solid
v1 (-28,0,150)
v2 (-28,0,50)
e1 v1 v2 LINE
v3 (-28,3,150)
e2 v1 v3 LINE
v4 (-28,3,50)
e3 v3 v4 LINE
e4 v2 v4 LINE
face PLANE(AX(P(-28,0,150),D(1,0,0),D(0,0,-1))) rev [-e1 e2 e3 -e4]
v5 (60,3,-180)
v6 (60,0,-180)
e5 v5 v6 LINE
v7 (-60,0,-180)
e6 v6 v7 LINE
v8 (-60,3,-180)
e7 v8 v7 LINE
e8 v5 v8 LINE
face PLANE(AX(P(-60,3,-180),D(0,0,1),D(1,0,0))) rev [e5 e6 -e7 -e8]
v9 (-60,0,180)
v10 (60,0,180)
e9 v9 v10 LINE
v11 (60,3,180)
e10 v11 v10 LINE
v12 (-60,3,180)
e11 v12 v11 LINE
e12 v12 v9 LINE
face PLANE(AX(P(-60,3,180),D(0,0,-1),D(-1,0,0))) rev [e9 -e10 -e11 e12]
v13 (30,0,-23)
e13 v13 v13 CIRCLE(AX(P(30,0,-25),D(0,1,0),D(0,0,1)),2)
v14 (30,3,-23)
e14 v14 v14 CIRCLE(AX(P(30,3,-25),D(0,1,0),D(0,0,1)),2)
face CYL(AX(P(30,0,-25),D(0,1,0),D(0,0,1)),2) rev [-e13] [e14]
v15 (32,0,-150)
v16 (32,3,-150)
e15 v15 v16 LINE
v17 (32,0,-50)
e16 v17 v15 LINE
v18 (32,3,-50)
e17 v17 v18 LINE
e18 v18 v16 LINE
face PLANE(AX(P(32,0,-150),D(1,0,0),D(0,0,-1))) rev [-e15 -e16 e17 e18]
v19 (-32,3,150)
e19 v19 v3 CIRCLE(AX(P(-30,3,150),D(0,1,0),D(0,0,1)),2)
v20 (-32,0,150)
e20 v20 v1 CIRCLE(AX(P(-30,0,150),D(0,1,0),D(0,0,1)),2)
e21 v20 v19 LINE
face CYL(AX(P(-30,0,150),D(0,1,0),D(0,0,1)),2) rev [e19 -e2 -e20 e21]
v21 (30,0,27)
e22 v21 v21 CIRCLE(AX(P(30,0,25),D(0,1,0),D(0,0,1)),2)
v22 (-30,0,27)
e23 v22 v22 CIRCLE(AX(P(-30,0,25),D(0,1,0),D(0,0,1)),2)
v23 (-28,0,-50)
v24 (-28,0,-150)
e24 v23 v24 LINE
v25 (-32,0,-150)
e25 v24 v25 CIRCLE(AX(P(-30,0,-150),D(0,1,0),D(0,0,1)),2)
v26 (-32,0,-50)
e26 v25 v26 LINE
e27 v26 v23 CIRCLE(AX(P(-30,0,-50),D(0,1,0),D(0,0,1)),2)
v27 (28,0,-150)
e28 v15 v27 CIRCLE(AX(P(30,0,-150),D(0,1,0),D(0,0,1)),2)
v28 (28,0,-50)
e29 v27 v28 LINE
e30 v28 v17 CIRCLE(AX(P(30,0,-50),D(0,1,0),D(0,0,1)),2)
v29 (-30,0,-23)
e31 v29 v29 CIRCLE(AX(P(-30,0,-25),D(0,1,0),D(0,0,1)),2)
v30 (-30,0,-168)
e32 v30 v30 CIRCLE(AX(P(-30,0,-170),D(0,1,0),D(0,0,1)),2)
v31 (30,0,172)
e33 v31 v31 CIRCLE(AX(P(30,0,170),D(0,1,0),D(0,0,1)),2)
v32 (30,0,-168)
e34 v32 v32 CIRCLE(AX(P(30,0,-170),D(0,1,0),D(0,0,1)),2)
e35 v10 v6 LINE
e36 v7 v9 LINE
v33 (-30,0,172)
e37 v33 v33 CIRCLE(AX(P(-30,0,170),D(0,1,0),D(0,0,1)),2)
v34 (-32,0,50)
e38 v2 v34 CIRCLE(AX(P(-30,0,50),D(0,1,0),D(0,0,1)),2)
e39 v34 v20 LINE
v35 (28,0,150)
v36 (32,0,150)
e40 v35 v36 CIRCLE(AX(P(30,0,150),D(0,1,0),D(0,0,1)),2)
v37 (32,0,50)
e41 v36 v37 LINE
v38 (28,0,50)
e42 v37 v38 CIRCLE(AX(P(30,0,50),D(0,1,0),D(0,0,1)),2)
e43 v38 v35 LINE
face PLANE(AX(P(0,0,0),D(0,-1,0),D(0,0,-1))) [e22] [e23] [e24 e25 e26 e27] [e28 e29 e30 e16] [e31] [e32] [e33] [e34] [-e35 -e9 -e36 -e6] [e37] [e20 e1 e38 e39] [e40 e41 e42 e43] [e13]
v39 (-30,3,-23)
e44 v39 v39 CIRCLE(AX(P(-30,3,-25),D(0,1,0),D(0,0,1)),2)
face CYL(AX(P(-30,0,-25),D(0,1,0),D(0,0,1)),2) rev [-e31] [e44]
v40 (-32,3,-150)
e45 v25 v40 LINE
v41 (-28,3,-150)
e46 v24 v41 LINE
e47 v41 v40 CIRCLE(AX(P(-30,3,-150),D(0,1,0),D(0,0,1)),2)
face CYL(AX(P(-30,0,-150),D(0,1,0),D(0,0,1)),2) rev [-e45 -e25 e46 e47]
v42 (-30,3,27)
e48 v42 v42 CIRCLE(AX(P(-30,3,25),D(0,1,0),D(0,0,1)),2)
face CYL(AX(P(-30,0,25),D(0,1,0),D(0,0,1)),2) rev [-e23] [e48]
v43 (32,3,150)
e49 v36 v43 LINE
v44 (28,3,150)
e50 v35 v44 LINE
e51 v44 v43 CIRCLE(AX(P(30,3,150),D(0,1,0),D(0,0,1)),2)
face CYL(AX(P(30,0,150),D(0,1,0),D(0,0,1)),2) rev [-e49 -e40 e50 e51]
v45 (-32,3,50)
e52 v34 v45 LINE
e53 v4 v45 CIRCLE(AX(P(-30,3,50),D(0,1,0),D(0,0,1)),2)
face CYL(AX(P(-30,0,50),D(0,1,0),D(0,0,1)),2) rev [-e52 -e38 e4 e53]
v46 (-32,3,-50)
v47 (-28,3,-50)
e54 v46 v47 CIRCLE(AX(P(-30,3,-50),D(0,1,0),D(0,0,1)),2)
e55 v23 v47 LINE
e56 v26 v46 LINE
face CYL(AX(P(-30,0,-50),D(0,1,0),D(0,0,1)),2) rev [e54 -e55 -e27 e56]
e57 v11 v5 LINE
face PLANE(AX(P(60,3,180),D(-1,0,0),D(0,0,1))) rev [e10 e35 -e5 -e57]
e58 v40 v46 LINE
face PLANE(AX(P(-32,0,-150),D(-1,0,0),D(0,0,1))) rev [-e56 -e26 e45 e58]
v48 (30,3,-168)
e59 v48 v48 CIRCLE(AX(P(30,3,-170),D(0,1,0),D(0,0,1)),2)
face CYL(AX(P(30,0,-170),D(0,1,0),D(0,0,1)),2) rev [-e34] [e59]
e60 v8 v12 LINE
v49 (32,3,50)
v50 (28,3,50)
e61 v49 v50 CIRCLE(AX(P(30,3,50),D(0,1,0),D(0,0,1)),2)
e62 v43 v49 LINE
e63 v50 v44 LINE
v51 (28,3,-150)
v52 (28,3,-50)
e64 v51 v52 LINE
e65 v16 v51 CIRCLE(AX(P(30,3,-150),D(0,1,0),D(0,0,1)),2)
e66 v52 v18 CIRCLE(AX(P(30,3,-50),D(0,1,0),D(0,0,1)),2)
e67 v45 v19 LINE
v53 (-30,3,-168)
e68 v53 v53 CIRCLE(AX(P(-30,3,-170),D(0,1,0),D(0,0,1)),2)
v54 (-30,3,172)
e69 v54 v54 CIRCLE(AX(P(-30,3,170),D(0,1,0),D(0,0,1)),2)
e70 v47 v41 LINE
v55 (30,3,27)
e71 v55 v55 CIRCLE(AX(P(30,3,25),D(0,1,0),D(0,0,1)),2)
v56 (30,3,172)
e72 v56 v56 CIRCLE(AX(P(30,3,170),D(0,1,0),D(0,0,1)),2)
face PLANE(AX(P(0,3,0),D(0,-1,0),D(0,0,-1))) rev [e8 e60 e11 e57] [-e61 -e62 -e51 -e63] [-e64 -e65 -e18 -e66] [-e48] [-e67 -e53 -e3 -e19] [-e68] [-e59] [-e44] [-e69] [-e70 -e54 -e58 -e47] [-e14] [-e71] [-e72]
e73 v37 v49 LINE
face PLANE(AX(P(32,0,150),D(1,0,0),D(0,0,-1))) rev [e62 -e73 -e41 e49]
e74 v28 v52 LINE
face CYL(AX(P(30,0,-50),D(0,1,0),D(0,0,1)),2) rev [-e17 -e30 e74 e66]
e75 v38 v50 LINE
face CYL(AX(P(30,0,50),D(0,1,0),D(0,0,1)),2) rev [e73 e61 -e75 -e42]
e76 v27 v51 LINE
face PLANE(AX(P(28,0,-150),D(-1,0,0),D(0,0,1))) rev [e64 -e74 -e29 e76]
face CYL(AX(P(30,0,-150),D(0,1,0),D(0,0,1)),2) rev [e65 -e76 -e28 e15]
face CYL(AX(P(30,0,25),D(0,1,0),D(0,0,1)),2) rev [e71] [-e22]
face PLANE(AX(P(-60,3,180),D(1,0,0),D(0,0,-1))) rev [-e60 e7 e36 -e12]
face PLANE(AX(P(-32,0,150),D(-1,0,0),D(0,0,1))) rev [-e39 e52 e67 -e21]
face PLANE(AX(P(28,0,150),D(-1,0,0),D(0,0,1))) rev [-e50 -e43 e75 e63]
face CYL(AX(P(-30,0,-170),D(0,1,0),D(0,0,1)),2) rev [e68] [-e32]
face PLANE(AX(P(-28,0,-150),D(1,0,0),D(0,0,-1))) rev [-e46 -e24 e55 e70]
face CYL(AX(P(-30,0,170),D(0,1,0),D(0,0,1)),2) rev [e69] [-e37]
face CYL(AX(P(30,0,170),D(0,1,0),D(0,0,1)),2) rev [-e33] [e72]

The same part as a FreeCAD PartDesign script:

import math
import FreeCAD as App
import Part
import Sketcher

doc = App.newDocument("Part")
body = doc.addObject("PartDesign::Body", "Body")

# Sketch on XZ plane
sketch1 = doc.addObject("Sketcher::SketchObject", "Sketch")
body.addObject(sketch1)
sketch1.AttachmentSupport = (doc.XZ_Plane, [""])
sketch1.MapMode = "FlatFace"
sketch1.addGeometry([
    Part.LineSegment(App.Vector(-60, -180, 0), App.Vector(-60, 180, 0)),
    Part.LineSegment(App.Vector(-60, 180, 0), App.Vector(60, 180, 0)),
    Part.LineSegment(App.Vector(60, 180, 0), App.Vector(60, -180, 0)),
    Part.LineSegment(App.Vector(60, -180, 0), App.Vector(-60, -180, 0)),
], False)
sketch1.addConstraint([
    Sketcher.Constraint("Coincident", 0, 2, 1, 1),
    Sketcher.Constraint("Coincident", 1, 2, 2, 1),
    Sketcher.Constraint("Coincident", 2, 2, 3, 1),
    Sketcher.Constraint("Coincident", 3, 2, 0, 1),
    Sketcher.Constraint("Vertical", 0),
    Sketcher.Constraint("Horizontal", 1),
    Sketcher.Constraint("Vertical", 2),
    Sketcher.Constraint("Horizontal", 3),
    Sketcher.Constraint("Symmetric", 0, 2, 2, 2, -1, 1),
    Sketcher.Constraint("DistanceX", 1, 1, 1, 2, 120.0),
    Sketcher.Constraint("DistanceY", 0, 1, 0, 2, 360.0),
])
pad1 = doc.addObject("PartDesign::Pad", "Pad")
body.addObject(pad1)
pad1.Profile = sketch1
pad1.Length = 3
pad1.Reversed = True

# Sketch on XZ plane
sketch2 = doc.addObject("Sketcher::SketchObject", "Sketch001")
body.addObject(sketch2)
sketch2.AttachmentSupport = (doc.XZ_Plane, [""])
sketch2.MapMode = "FlatFace"
sketch2.AttachmentOffset = App.Placement(App.Vector(0, 0, -3), App.Rotation())
sketch2.addGeometry([
    Part.Circle(App.Vector(-30, -170, 0), App.Vector(0, 0, 1), 2),  # 0
    Part.Circle(App.Vector(30, -170, 0), App.Vector(0, 0, 1), 2),  # 1
    Part.Circle(App.Vector(-30, 170, 0), App.Vector(0, 0, 1), 2),  # 2
    Part.Circle(App.Vector(30, 170, 0), App.Vector(0, 0, 1), 2),  # 3
    Part.Circle(App.Vector(-30, -25, 0), App.Vector(0, 0, 1), 2),  # 4
    Part.Circle(App.Vector(30, -25, 0), App.Vector(0, 0, 1), 2),  # 5
    Part.Circle(App.Vector(-30, 25, 0), App.Vector(0, 0, 1), 2),  # 6
    Part.Circle(App.Vector(30, 25, 0), App.Vector(0, 0, 1), 2),  # 7
], False)
sketch2.addConstraint([
    Sketcher.Constraint("Equal", 0, 1),
    Sketcher.Constraint("Equal", 1, 2),
    Sketcher.Constraint("Equal", 2, 3),
    Sketcher.Constraint("Equal", 3, 4),
    Sketcher.Constraint("Equal", 4, 5),
    Sketcher.Constraint("Equal", 5, 6),
    Sketcher.Constraint("Equal", 6, 7),
    Sketcher.Constraint("Symmetric", 1, 3, 2, 3, -1, 1),
    Sketcher.Constraint("Symmetric", 0, 3, 3, 3, -1, 1),
    Sketcher.Constraint("Symmetric", 5, 3, 6, 3, -1, 1),
    Sketcher.Constraint("Symmetric", 4, 3, 7, 3, -1, 1),
    Sketcher.Constraint("Symmetric", 0, 3, 1, 3, -2),
    Sketcher.Constraint("Symmetric", 4, 3, 5, 3, -2),
    Sketcher.Constraint("Vertical", 2, 3, 4, 3),
    Sketcher.Constraint("Diameter", 0, 4.0),
    Sketcher.Constraint("DistanceX", 0, 3, -1, 1, 30.0),
    Sketcher.Constraint("DistanceY", 0, 3, -1, 1, 170.0),
    Sketcher.Constraint("DistanceY", 4, 3, -1, 1, 25.0),
])
pocket1 = doc.addObject("PartDesign::Pocket", "Pocket")
body.addObject(pocket1)
pocket1.Profile = sketch2
pocket1.Type = "ThroughAll"
pocket1.Reversed = True

# Sketch on XZ plane
sketch3 = doc.addObject("Sketcher::SketchObject", "Sketch002")
body.addObject(sketch3)
sketch3.AttachmentSupport = (doc.XZ_Plane, [""])
sketch3.MapMode = "FlatFace"
sketch3.AttachmentOffset = App.Placement(App.Vector(0, 0, -3), App.Rotation())
sketch3.addGeometry([
    Part.LineSegment(App.Vector(32, -50, 0), App.Vector(32, -150, 0)),  # 0
    Part.ArcOfCircle(Part.Circle(App.Vector(30, -150, 0), App.Vector(0, 0, 1), 2), math.radians(180), math.radians(360)),  # 1
    Part.LineSegment(App.Vector(28, -150, 0), App.Vector(28, -50, 0)),  # 2
    Part.ArcOfCircle(Part.Circle(App.Vector(30, -50, 0), App.Vector(0, 0, 1), 2), math.radians(0), math.radians(180)),  # 3
    Part.LineSegment(App.Vector(-28, -50, 0), App.Vector(-28, -150, 0)),  # 4
    Part.ArcOfCircle(Part.Circle(App.Vector(-30, -150, 0), App.Vector(0, 0, 1), 2), math.radians(180), math.radians(360)),  # 5
    Part.LineSegment(App.Vector(-32, -150, 0), App.Vector(-32, -50, 0)),  # 6
    Part.ArcOfCircle(Part.Circle(App.Vector(-30, -50, 0), App.Vector(0, 0, 1), 2), math.radians(0), math.radians(180)),  # 7
    Part.LineSegment(App.Vector(28, 50, 0), App.Vector(28, 150, 0)),  # 8
    Part.ArcOfCircle(Part.Circle(App.Vector(30, 150, 0), App.Vector(0, 0, 1), 2), math.radians(0), math.radians(180)),  # 9
    Part.LineSegment(App.Vector(32, 150, 0), App.Vector(32, 50, 0)),  # 10
    Part.ArcOfCircle(Part.Circle(App.Vector(30, 50, 0), App.Vector(0, 0, 1), 2), math.radians(180), math.radians(360)),  # 11
    Part.LineSegment(App.Vector(-32, 50, 0), App.Vector(-32, 150, 0)),  # 12
    Part.ArcOfCircle(Part.Circle(App.Vector(-30, 150, 0), App.Vector(0, 0, 1), 2), math.radians(0), math.radians(180)),  # 13
    Part.LineSegment(App.Vector(-28, 150, 0), App.Vector(-28, 50, 0)),  # 14
    Part.ArcOfCircle(Part.Circle(App.Vector(-30, 50, 0), App.Vector(0, 0, 1), 2), math.radians(180), math.radians(360)),  # 15
], False)
sketch3.addConstraint([
    Sketcher.Constraint("Tangent", 0, 2, 1, 2),
    Sketcher.Constraint("Tangent", 1, 1, 2, 1),
    Sketcher.Constraint("Tangent", 2, 2, 3, 2),
    Sketcher.Constraint("Tangent", 3, 1, 0, 1),
    Sketcher.Constraint("Tangent", 4, 2, 5, 2),
    Sketcher.Constraint("Tangent", 5, 1, 6, 1),
    Sketcher.Constraint("Tangent", 6, 2, 7, 2),
    Sketcher.Constraint("Tangent", 7, 1, 4, 1),
    Sketcher.Constraint("Tangent", 8, 2, 9, 2),
    Sketcher.Constraint("Tangent", 9, 1, 10, 1),
    Sketcher.Constraint("Tangent", 10, 2, 11, 2),
    Sketcher.Constraint("Tangent", 11, 1, 8, 1),
    Sketcher.Constraint("Tangent", 12, 2, 13, 2),
    Sketcher.Constraint("Tangent", 13, 1, 14, 1),
    Sketcher.Constraint("Tangent", 14, 2, 15, 2),
    Sketcher.Constraint("Tangent", 15, 1, 12, 1),
    Sketcher.Constraint("Vertical", 0),
    Sketcher.Constraint("Vertical", 2),
    Sketcher.Constraint("Vertical", 4),
    Sketcher.Constraint("Vertical", 6),
    Sketcher.Constraint("Vertical", 8),
    Sketcher.Constraint("Vertical", 10),
    Sketcher.Constraint("Vertical", 12),
    Sketcher.Constraint("Vertical", 14),
    Sketcher.Constraint("Equal", 3, 5),
    Sketcher.Constraint("Equal", 7, 9),
    Sketcher.Constraint("Equal", 11, 13),
    Sketcher.Constraint("Symmetric", 5, 3, 9, 3, -1, 1),
    Sketcher.Constraint("Symmetric", 1, 3, 13, 3, -1, 1),
    Sketcher.Constraint("Symmetric", 1, 3, 5, 3, -2),
    Sketcher.Constraint("Horizontal", 3, 3, 7, 3),
    Sketcher.Constraint("Horizontal", 11, 3, 15, 3),
    Sketcher.Constraint("Equal", 6, 8),
    Sketcher.Constraint("Radius", 1, 2.0),
    Sketcher.Constraint("DistanceY", 0, 2, 0, 1, 100.0),
    Sketcher.Constraint("DistanceX", -1, 1, 1, 3, 30.0),
    Sketcher.Constraint("DistanceY", 1, 3, -1, 1, 150.0),
])
pocket2 = doc.addObject("PartDesign::Pocket", "Pocket001")
body.addObject(pocket2)
pocket2.Profile = sketch3
pocket2.Type = "ThroughAll"
pocket2.Reversed = True

doc.recompute()
